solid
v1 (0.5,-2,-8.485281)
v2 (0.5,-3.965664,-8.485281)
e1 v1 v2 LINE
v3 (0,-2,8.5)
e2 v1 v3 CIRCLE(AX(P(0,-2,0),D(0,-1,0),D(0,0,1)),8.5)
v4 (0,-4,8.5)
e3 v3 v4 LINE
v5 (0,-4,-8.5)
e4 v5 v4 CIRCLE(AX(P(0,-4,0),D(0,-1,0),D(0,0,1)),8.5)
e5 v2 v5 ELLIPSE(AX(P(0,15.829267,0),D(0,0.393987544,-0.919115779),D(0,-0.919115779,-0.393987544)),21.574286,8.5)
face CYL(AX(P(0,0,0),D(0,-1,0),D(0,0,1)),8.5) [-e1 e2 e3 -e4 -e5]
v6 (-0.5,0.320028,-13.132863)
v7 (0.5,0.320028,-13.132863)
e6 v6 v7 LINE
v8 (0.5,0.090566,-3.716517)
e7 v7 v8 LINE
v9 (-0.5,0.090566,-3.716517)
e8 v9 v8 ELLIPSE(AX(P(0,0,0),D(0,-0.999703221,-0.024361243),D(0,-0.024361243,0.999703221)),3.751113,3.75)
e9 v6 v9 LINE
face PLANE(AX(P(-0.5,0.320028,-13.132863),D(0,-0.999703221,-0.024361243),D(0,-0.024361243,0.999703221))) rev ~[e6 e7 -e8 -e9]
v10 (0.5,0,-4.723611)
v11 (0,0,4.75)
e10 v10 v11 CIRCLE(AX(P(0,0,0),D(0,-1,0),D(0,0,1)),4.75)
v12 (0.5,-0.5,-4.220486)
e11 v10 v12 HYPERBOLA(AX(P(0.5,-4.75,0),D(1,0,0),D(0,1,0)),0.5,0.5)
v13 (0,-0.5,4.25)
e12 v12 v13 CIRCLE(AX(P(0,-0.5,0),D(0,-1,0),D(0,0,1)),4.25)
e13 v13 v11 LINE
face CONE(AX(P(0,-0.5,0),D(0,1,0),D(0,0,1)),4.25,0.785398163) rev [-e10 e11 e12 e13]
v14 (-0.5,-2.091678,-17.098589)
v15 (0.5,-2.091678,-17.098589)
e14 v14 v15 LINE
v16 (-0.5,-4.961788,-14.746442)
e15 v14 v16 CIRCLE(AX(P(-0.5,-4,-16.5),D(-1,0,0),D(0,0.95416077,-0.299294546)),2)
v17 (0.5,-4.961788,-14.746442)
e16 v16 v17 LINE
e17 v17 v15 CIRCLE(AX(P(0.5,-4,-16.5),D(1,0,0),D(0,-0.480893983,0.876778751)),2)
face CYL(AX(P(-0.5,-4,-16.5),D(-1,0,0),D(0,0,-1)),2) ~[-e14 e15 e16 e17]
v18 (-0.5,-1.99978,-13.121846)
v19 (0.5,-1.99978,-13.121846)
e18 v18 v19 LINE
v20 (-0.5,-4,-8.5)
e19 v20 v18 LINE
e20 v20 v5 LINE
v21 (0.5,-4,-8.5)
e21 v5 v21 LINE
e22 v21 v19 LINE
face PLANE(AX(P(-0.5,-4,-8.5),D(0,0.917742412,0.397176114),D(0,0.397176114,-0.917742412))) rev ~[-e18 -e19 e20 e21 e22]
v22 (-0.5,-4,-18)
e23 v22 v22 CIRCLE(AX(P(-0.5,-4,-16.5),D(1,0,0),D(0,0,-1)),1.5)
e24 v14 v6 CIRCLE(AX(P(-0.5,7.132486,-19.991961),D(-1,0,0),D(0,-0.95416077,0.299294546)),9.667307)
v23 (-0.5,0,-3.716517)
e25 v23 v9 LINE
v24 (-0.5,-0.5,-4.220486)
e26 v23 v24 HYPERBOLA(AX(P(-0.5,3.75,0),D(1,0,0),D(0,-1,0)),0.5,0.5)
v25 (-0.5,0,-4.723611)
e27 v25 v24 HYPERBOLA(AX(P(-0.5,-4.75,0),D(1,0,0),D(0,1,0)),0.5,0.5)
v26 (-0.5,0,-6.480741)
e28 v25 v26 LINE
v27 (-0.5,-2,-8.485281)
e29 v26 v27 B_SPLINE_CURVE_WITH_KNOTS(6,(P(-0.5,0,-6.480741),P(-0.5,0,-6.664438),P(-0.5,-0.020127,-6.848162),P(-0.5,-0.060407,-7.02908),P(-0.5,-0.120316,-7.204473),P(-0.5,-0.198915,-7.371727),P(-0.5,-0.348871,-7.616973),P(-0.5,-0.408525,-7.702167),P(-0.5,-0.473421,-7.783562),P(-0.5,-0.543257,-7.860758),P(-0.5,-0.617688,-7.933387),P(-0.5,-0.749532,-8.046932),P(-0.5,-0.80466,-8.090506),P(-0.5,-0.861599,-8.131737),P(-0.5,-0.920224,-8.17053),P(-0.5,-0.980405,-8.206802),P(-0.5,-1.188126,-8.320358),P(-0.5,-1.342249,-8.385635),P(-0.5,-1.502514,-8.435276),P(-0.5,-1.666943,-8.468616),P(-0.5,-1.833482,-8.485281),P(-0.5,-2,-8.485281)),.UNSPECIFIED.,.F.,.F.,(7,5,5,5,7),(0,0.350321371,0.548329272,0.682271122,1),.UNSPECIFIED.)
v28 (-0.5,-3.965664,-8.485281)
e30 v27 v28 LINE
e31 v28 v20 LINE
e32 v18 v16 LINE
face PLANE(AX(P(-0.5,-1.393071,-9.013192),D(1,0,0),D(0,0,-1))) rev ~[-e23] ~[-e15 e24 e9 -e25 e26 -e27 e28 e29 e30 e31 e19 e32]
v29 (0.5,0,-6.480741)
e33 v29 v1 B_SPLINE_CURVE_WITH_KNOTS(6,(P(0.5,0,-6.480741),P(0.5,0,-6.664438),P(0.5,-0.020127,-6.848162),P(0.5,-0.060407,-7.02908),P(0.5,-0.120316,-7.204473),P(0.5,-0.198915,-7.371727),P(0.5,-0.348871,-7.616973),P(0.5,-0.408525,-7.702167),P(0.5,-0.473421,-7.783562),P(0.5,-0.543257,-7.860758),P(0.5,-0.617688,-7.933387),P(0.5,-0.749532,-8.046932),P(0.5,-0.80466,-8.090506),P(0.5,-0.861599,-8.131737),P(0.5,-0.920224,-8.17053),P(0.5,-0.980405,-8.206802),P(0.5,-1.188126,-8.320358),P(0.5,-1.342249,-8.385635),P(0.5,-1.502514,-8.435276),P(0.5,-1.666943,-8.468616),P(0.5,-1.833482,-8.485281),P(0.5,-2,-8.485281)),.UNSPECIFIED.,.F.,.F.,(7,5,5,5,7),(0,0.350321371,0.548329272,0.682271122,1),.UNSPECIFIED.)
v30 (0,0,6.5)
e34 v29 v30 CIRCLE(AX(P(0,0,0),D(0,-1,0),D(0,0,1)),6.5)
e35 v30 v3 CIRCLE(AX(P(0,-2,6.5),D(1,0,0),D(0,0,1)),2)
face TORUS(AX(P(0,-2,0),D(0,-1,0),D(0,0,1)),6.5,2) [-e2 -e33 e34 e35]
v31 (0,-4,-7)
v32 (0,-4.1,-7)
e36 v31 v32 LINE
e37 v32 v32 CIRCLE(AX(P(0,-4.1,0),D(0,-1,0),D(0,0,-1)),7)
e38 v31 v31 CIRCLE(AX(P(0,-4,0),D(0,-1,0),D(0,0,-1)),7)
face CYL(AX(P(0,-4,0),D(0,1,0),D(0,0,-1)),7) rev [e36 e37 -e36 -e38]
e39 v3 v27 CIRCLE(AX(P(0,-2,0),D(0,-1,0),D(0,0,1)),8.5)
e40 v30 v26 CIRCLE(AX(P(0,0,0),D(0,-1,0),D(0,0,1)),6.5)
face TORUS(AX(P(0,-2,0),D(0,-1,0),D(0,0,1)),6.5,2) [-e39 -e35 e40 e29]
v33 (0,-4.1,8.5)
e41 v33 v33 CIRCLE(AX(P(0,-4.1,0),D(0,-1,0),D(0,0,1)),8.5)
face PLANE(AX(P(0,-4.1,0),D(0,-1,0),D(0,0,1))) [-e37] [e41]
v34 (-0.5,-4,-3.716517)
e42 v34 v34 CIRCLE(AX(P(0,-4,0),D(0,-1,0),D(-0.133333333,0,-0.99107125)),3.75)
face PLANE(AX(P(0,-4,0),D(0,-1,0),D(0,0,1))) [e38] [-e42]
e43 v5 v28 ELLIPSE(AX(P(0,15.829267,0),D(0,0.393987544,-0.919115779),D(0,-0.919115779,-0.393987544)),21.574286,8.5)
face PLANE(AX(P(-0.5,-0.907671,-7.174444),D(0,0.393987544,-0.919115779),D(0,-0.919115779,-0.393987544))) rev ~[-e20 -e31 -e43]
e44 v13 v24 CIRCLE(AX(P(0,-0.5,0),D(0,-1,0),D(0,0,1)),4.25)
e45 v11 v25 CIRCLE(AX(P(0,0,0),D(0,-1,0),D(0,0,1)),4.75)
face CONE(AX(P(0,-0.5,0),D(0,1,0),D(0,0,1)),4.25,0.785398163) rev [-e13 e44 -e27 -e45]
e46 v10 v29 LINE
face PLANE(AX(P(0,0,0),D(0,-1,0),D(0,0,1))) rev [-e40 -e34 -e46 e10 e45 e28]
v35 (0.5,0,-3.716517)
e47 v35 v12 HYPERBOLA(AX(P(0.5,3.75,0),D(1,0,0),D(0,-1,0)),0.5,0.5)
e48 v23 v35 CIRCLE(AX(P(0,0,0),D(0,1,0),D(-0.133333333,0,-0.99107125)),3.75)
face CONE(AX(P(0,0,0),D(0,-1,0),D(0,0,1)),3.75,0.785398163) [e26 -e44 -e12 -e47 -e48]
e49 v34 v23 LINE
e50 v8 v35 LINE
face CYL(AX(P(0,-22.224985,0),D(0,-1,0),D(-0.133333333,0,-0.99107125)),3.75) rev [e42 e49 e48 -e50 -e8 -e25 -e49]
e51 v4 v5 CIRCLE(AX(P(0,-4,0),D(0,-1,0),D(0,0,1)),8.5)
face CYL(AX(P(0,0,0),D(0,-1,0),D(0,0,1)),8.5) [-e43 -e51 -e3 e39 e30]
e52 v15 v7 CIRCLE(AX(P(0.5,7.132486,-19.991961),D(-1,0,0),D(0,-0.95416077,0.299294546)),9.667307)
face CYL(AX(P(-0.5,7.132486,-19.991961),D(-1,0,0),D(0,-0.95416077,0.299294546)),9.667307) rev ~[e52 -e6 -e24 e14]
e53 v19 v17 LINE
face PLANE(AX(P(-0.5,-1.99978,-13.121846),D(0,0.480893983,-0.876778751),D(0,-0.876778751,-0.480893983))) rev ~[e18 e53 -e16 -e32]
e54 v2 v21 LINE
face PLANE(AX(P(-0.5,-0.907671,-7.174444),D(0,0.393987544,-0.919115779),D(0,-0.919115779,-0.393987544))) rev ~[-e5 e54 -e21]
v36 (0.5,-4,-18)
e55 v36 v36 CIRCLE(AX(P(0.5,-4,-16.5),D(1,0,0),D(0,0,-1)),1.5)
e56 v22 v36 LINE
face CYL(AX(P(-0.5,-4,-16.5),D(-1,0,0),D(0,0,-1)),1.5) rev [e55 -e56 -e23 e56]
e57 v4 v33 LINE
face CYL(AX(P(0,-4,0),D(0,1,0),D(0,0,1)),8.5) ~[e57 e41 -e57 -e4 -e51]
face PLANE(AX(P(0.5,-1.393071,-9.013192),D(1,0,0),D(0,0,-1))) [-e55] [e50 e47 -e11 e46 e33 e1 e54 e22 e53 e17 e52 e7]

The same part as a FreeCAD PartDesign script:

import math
import FreeCAD as App
import Part
import Sketcher


def edges_at(feature, points):
    """Names of the edges that pass closest to the given points."""
    edges = feature.Shape.Edges
    near = lambda p: min(range(len(edges)), key=lambda i: edges[i].distToShape(Part.Vertex(*p))[0])
    return sorted({f"Edge{near(p) + 1}" for p in points})


def add_polygon(sketch, points):
    """Adds a closed chain of lines whose ends are joined by coincident constraints."""
    first, n = sketch.GeometryCount, len(points)
    for a, b in zip(points, points[1:] + points[:1]):
        sketch.addGeometry(Part.LineSegment(App.Vector(*a, 0), App.Vector(*b, 0)), False)
    for i in range(n):
        sketch.addConstraint(Sketcher.Constraint("Coincident", first + i, 2, first + (i + 1) % n, 1))

doc = App.newDocument("Part")
body = doc.addObject("PartDesign::Body", "Body")

# Sketch on YZ plane
sketch1 = body.newObject("Sketcher::SketchObject", "Sketch")
sketch1.AttachmentSupport = (doc.getObject("YZ_Plane"), [""])
sketch1.MapMode = "FlatFace"
add_polygon(sketch1, [(0, 0), (0, 3.8), (-0.5, 4.2), (0, 4.8), (0, 8.5), (-4, 8.5), (-4, 0)])  # lines 0-6
sketch1.addConstraint([
    Sketcher.Constraint("Vertical", 0),
    Sketcher.Constraint("Vertical", 3),
    Sketcher.Constraint("Horizontal", 4),
    Sketcher.Constraint("Vertical", 5),
    Sketcher.Constraint("Horizontal", 6),
    Sketcher.Constraint("Coincident", 6, 2, -1, 1),
    Sketcher.Constraint("PointOnObject", 2, 2, -2),
    Sketcher.Constraint("Perpendicular", 1, 2),
    Sketcher.Constraint("Equal", 0, 3),
    Sketcher.Constraint("Equal", 1, 2),
    Sketcher.Constraint("DistanceX", 4, 2, 4, 1, 4.0),
    Sketcher.Constraint("DistanceY", 5, 2, 5, 1, 8.5),
    Sketcher.Constraint("DistanceY", 0, 2, 2, 2, 1.0),
])
revolution = body.newObject("PartDesign::Revolution", "Revolution")
revolution.Profile = sketch1
revolution.ReferenceAxis = (sketch1, ["H_Axis"])
revolution.Angle = 360
doc.recompute()

fillet = body.newObject("PartDesign::Fillet", "Fillet")
fillet.Base = (revolution, edges_at(revolution, [(0, 0, -8.5)]))
fillet.Radius = 2
body2 = doc.addObject("PartDesign::Body", "Body001")

# Sketch on XZ plane
sketch2 = body2.newObject("Sketcher::SketchObject", "Sketch001")
sketch2.AttachmentSupport = (doc.getObject("XZ_Plane001"), [""])
sketch2.MapMode = "FlatFace"
sketch2.AttachmentOffset = App.Placement(App.Vector(0, 0, 4), App.Rotation())
sketch2.addGeometry([
    Part.Circle(App.Vector(0, 0, 0), App.Vector(0, 0, 1), 8),
    Part.Circle(App.Vector(0, 0, 0), App.Vector(0, 0, 1), 7),
], False)
sketch2.addConstraint([
    Sketcher.Constraint("Coincident", 0, 3, -1, 1),
    Sketcher.Constraint("Coincident", 1, 3, -1, 1),
    Sketcher.Constraint("Diameter", 0, 17.0),
    Sketcher.Constraint("Diameter", 1, 14.0),
])
pad1 = body2.newObject("PartDesign::Pad", "Pad")
pad1.Profile = sketch2
pad1.Length = 0.1
doc.recompute()

boolean = body.newObject("PartDesign::Boolean", "Boolean")
boolean.Type = "Fuse"
boolean.addObjects([body2])

# Sketch on YZ plane
sketch3 = body.newObject("Sketcher::SketchObject", "Sketch002")
sketch3.AttachmentSupport = (doc.getObject("YZ_Plane"), [""])
sketch3.MapMode = "FlatFace"
sketch3.addGeometry([
    Part.LineSegment(App.Vector(0.320028, -13.132863, 0), App.Vector(0, 0, 0)),  # 0
    Part.LineSegment(App.Vector(0, 0, 0), App.Vector(-0.907671, 0, 0)),  # 1
    Part.LineSegment(App.Vector(-0.907671, 0, 0), App.Vector(-0.907671, -7.174444, 0)),  # 2
    Part.LineSegment(App.Vector(-0.907671, -7.174444, 0), App.Vector(-4, -8.5, 0)),  # 3
    Part.LineSegment(App.Vector(-4, -8.5, 0), App.Vector(-1.99978, -13.121846, 0)),  # 4
    Part.LineSegment(App.Vector(-1.99978, -13.121846, 0), App.Vector(-4.961788, -14.746442, 0)),  # 5
    Part.ArcOfCircle(Part.Circle(App.Vector(-4, -16.5, 0), App.Vector(0, 0, 1), 2), math.radians(118.743806), math.radians(342.584763)),  # 6
    Part.ArcOfCircle(Part.Circle(App.Vector(7.132486, -19.991961, 0), App.Vector(0, 0, 1), 9.667307), math.radians(134.80454), math.radians(162.584763)),  # 7
    Part.Circle(App.Vector(-4, -16.5, 0), App.Vector(0, 0, 1), 1.5),  # 8
], False)
sketch3.addConstraint([
    Sketcher.Constraint("Coincident", 0, 2, 1, 1),
    Sketcher.Constraint("Coincident", 1, 2, 2, 1),
    Sketcher.Constraint("Coincident", 2, 2, 3, 1),
    Sketcher.Constraint("Coincident", 3, 2, 4, 1),
    Sketcher.Constraint("Coincident", 4, 2, 5, 1),
    Sketcher.Constraint("Coincident", 5, 2, 6, 1),
    Sketcher.Constraint("Coincident", 6, 2, 7, 2),
    Sketcher.Constraint("Coincident", 7, 1, 0, 1),
    Sketcher.Constraint("Horizontal", 1),
    Sketcher.Constraint("Vertical", 2),
    Sketcher.Constraint("Coincident", 0, 2, -1, 1),
    Sketcher.Constraint("Coincident", 8, 3, 6, 3),
    Sketcher.Constraint("Diameter", 8, 3.0),
    Sketcher.Constraint("Radius", 6, 2.0),
    Sketcher.Constraint("DistanceX", 6, 3, -1, 1, 4.0),
    Sketcher.Constraint("DistanceX", 3, 2, -1, 1, 4.0),
    Sketcher.Constraint("DistanceY", 6, 3, 3, 2, 8.0),
    Sketcher.Constraint("DistanceY", 6, 3, -1, 1, 16.5),
    Sketcher.Constraint("Radius", 7, 9.667307),
    Sketcher.Constraint("DistanceY", 5, 2, 2, 2, 7.571998),
    Sketcher.Constraint("DistanceX", 1, 2, 1, 1, 0.907671),
    Sketcher.Constraint("DistanceY", 4, 2, 2, 2, 5.947402),
    Sketcher.Constraint("DistanceX", 6, 2, 4, 2, 0.091899),
    Sketcher.Constraint("Distance", 0, 13.136762),
    Sketcher.Constraint("Distance", 3, 3.364461),
    Sketcher.Constraint("DistanceY", 7, 3, -1, 1, 19.991961),
    Sketcher.Constraint("DistanceX", 4, 2, -1, 1, 1.99978),
])
pad2 = body.newObject("PartDesign::Pad", "Pad001")
pad2.Profile = sketch3
pad2.Type = "TwoLengths"
pad2.Length = 0.5
pad2.Length2 = 0.5

# Sketch on XZ plane
sketch4 = body.newObject("Sketcher::SketchObject", "Sketch003")
sketch4.AttachmentSupport = (doc.getObject("XZ_Plane"), [""])
sketch4.MapMode = "FlatFace"
sketch4.addGeometry(Part.Circle(App.Vector(0, 0, 0), App.Vector(0, 0, 1), 3.8), False)
sketch4.addConstraint([
    Sketcher.Constraint("Coincident", 0, 3, -1, 1),
    Sketcher.Constraint("Diameter", 0, 7.5),
])
pocket1 = body.newObject("PartDesign::Pocket", "Pocket")
pocket1.Profile = sketch4
pocket1.Type = "ThroughAll"
pocket1.Midplane = True

doc.recompute()
